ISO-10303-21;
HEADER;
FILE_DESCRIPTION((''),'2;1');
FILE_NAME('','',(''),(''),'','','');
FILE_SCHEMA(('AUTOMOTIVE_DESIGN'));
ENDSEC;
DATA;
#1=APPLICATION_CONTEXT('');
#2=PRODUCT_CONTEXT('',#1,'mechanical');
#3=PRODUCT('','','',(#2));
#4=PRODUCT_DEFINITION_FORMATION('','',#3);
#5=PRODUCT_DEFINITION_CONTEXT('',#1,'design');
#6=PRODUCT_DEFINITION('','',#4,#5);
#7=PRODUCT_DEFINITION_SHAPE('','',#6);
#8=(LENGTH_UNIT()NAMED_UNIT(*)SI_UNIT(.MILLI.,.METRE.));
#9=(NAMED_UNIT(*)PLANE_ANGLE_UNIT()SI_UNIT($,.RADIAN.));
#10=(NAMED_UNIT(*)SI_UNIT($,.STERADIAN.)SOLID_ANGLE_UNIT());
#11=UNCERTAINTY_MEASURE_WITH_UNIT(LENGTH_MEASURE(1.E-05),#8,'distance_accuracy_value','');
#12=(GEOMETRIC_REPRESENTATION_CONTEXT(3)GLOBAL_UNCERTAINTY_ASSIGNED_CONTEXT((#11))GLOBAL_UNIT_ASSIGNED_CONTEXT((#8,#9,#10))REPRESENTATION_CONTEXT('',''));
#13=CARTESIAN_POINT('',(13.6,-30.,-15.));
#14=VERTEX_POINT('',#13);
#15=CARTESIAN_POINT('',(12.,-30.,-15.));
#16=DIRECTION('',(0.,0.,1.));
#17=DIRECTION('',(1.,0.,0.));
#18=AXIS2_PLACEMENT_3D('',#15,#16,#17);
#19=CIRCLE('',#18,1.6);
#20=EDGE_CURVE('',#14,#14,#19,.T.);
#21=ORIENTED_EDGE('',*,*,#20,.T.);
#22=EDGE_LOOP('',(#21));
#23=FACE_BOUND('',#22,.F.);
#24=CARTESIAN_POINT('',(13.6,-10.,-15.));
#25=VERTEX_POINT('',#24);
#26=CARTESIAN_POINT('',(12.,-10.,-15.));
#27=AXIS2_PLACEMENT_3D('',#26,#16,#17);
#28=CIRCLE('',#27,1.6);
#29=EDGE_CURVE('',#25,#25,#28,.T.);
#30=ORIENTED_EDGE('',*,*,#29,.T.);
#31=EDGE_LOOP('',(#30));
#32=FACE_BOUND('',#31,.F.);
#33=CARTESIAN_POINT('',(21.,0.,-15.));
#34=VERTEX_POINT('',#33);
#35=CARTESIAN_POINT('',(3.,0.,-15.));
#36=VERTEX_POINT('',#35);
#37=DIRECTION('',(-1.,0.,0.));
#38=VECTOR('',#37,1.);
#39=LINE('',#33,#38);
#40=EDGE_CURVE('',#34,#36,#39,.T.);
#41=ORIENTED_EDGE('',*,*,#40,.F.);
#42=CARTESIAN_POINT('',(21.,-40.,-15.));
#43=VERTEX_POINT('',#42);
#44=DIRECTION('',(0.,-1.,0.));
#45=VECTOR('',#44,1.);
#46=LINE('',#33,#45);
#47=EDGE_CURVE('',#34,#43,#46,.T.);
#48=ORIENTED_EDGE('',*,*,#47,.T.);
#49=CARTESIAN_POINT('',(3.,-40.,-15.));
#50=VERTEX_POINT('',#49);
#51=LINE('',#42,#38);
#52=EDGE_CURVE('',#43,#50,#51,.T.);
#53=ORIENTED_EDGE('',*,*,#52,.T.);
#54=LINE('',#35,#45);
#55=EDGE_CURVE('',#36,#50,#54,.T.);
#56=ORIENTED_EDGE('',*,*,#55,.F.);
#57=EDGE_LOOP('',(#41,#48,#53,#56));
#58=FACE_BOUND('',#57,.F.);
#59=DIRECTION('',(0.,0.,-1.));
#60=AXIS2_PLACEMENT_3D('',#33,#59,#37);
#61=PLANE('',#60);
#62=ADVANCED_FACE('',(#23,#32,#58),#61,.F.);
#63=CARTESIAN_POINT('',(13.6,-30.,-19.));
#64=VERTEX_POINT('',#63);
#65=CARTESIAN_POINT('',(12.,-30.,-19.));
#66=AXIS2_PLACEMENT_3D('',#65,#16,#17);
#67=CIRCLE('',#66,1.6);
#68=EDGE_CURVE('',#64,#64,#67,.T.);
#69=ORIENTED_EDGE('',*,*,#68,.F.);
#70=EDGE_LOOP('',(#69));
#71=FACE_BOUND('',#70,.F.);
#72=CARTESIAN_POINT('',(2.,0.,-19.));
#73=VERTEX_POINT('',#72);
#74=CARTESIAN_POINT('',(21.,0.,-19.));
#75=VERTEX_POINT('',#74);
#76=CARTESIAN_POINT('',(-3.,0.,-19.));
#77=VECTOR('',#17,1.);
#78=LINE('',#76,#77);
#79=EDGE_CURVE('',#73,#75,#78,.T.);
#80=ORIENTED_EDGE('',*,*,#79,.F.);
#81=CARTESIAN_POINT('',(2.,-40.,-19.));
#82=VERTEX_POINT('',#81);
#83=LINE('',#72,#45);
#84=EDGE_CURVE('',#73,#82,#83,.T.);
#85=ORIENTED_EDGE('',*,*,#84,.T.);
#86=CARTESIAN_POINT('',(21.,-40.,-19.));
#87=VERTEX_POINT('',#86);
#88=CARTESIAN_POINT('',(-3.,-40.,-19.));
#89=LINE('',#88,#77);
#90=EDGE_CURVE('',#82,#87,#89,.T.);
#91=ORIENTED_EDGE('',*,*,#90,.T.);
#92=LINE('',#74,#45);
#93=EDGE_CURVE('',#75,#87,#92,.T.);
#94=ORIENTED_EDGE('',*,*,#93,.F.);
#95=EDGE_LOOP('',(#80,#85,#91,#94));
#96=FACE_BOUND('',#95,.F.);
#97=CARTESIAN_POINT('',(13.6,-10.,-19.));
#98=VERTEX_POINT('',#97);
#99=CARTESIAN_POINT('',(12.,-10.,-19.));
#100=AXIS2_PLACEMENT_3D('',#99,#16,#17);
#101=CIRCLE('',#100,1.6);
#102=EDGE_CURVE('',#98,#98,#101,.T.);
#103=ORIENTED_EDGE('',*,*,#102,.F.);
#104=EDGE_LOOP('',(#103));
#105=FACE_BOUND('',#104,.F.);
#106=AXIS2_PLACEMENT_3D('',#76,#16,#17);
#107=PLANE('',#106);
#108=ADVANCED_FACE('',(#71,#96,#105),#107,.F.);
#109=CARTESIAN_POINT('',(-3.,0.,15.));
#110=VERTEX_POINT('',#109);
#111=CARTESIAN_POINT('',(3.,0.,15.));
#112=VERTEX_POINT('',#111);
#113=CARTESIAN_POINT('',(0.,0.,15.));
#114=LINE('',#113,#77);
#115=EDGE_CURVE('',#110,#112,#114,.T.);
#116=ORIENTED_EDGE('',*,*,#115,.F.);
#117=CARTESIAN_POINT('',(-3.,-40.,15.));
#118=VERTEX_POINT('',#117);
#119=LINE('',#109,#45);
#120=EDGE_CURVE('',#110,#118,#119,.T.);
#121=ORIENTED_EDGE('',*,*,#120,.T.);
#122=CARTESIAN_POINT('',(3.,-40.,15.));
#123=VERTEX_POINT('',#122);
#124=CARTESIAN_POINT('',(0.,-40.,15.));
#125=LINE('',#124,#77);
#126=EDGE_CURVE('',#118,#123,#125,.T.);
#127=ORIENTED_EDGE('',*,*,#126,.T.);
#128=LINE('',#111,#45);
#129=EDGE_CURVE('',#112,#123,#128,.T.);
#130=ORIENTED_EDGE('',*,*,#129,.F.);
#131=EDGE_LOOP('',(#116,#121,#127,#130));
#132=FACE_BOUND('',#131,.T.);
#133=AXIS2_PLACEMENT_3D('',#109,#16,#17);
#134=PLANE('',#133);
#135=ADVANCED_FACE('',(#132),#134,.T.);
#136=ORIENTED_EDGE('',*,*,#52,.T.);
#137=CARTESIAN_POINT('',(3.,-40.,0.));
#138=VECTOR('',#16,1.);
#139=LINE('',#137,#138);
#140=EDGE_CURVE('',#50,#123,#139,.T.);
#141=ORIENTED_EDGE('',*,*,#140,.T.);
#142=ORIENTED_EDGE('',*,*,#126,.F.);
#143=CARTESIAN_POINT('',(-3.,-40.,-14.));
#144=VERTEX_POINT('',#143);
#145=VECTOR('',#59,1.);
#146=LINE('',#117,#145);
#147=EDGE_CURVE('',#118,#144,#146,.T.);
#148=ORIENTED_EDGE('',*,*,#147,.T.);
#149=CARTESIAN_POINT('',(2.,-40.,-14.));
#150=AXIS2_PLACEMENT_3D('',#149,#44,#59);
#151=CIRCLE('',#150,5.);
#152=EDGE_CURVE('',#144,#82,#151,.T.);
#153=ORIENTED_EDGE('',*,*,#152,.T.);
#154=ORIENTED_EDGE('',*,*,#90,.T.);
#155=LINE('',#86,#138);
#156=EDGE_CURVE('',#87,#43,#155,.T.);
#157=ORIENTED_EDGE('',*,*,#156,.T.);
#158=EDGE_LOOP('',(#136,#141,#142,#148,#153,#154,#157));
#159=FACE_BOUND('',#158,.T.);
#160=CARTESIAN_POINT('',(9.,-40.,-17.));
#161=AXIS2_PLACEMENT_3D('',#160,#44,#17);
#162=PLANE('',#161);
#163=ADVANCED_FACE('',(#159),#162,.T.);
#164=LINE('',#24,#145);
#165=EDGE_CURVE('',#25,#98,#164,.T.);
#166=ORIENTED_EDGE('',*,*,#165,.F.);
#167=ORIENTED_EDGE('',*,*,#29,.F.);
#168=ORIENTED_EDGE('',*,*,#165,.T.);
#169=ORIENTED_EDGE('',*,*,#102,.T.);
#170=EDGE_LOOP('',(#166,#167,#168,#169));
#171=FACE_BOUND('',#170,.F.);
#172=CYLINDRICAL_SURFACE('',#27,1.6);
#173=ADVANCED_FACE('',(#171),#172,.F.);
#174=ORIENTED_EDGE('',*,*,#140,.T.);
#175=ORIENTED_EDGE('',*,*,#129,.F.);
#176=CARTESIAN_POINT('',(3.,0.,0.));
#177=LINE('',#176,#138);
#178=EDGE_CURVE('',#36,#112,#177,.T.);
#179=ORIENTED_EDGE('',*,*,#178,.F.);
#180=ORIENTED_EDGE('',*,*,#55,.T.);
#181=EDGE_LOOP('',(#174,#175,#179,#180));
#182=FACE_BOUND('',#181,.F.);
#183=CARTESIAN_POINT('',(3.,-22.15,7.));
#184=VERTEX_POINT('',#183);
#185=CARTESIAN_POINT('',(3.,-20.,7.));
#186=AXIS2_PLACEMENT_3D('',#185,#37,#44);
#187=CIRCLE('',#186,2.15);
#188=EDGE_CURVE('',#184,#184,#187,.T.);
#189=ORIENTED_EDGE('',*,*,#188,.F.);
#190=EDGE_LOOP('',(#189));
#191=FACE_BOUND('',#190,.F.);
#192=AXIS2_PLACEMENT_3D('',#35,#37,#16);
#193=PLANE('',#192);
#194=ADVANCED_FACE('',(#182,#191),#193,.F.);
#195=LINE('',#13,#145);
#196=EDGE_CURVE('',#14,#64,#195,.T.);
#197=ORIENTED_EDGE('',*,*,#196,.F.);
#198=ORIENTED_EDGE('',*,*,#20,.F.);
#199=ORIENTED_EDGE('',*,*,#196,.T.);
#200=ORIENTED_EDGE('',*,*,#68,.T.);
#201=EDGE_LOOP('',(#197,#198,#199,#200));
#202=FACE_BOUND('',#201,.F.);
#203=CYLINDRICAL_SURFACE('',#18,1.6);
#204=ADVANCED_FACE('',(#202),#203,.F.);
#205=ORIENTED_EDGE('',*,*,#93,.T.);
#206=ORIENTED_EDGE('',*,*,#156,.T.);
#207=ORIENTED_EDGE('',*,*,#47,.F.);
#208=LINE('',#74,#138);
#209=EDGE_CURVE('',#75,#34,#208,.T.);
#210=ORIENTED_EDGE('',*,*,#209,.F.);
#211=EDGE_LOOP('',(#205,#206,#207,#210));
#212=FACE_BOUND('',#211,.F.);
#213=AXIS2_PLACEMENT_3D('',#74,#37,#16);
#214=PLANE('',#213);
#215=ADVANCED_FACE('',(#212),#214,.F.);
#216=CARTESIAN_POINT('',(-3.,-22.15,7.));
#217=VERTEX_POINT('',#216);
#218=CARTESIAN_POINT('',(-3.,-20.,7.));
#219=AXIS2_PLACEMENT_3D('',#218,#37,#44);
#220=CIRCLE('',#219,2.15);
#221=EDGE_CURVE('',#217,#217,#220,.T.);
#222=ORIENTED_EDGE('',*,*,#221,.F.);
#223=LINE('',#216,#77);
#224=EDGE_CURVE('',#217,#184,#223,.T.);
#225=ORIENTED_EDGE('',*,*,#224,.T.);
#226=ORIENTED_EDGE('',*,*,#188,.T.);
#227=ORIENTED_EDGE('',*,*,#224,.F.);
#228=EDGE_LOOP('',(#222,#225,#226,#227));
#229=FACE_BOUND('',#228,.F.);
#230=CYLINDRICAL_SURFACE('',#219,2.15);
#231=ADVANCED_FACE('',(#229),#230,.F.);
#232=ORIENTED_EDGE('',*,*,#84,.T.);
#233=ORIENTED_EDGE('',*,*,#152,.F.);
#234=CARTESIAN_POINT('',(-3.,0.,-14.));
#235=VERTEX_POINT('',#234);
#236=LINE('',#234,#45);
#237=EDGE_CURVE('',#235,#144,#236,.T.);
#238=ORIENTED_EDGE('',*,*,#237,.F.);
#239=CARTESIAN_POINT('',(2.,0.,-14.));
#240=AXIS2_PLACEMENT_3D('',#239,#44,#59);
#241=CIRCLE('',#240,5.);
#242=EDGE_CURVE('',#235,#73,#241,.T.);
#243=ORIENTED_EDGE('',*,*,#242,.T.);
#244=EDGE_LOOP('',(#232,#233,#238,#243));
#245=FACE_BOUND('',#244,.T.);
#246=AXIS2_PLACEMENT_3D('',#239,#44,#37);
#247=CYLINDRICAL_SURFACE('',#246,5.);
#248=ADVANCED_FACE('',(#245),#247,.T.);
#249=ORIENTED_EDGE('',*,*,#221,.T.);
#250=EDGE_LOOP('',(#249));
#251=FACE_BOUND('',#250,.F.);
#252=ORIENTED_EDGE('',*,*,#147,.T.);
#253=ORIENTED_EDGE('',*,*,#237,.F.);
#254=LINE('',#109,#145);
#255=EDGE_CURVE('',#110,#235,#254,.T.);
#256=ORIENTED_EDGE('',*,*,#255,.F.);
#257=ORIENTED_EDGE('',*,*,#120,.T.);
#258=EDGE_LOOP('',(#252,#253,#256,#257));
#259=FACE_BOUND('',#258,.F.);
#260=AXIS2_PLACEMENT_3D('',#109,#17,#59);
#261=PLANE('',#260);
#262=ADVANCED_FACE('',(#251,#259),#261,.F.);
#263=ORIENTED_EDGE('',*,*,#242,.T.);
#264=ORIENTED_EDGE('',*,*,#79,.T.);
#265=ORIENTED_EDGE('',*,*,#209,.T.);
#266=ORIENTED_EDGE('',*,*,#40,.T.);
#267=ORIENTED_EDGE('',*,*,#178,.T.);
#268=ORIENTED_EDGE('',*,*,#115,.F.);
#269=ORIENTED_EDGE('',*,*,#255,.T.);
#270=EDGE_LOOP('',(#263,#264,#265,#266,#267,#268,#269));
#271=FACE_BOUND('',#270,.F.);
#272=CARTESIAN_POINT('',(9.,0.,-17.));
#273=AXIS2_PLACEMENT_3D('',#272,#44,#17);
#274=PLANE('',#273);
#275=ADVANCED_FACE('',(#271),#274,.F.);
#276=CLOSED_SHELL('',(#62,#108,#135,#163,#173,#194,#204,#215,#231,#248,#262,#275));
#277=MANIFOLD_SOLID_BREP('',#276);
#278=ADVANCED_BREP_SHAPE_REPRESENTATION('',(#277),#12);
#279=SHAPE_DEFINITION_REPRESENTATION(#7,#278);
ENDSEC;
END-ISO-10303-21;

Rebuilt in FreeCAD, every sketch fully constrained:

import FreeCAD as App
import Part
import Sketcher

V = App.Vector
Q = App.Units.Quantity


def edges_at(feature, points):
    """Names of the edges that pass closest to the given points."""
    edges = feature.Shape.Edges
    near = lambda p: min(range(len(edges)), key=lambda i: edges[i].distToShape(Part.Vertex(*p))[0])
    return sorted({f"Edge{near(p) + 1}" for p in points})

doc = App.newDocument("Part")
params = doc.addObject("Spreadsheet::Sheet", "Params")
for row, (alias, value) in enumerate([
    ("sketch1_width", "18 mm"),
    ("sketch1_width2", "6 mm"),
    ("sketch1_height", "30 mm"),
    ("sketch1_height2", "34 mm"),
    ("pad1_length", "40 mm"),
    ("fillet_radius", "5 mm"),
    ("sketch2_diameter", "4.3 mm"),
    ("pocket1_length", "25 mm"),
    ("sketch3_diameter", "3.2 mm"),
    ("pocket2_length", "25 mm"),
], start=1):
    params.set(f"A{row}", alias)
    params.set(f"B{row}", "=" + value)
    params.setAlias(f"B{row}", alias)

body = doc.addObject("PartDesign::Body", "Body")

# Sketch on XZ plane
sketch1 = doc.addObject("Sketcher::SketchObject", "Sketch")
body.addObject(sketch1)
sketch1.AttachmentSupport = (doc.XZ_Plane, [""])
sketch1.MapMode = "FlatFace"
sketch1.addGeometry([
    Part.LineSegment(V(21, -15, 0), V(3, -15, 0)),  # 0
    Part.LineSegment(V(3, -15, 0), V(3, 15, 0)),  # 1
    Part.LineSegment(V(3, 15, 0), V(-3, 15, 0)),  # 2
    Part.LineSegment(V(-3, 15, 0), V(-3, -19, 0)),  # 3
    Part.LineSegment(V(-3, -19, 0), V(21, -19, 0)),  # 4
    Part.LineSegment(V(21, -19, 0), V(21, -15, 0)),  # 5
], False)
sketch1.addConstraint([
    Sketcher.Constraint("Coincident", 0, 2, 1, 1),
    Sketcher.Constraint("Coincident", 1, 2, 2, 1),
    Sketcher.Constraint("Coincident", 2, 2, 3, 1),
    Sketcher.Constraint("Coincident", 3, 2, 4, 1),
    Sketcher.Constraint("Coincident", 4, 2, 5, 1),
    Sketcher.Constraint("Coincident", 5, 2, 0, 1),
    Sketcher.Constraint("Horizontal", 0),
    Sketcher.Constraint("Vertical", 1),
    Sketcher.Constraint("Horizontal", 2),
    Sketcher.Constraint("Vertical", 3),
    Sketcher.Constraint("Horizontal", 4),
    Sketcher.Constraint("Vertical", 5),
    Sketcher.Constraint("Symmetric", 0, 2, 2, 2, -1, 1),
    Sketcher.Constraint("DistanceX", 0, 2, 0, 1, Q("18 mm")),
    Sketcher.Constraint("DistanceX", 2, 2, 2, 1, Q("6 mm")),
    Sketcher.Constraint("DistanceY", 1, 1, 1, 2, Q("30 mm")),
    Sketcher.Constraint("DistanceY", 3, 2, 3, 1, Q("34 mm")),
])
sketch1.setExpression("Constraints[13]", "Params.sketch1_width")
sketch1.setExpression("Constraints[14]", "Params.sketch1_width2")
sketch1.setExpression("Constraints[15]", "Params.sketch1_height")
sketch1.setExpression("Constraints[16]", "Params.sketch1_height2")
pad1 = doc.addObject("PartDesign::Pad", "Pad")
body.addObject(pad1)
pad1.Profile = sketch1
pad1.setExpression("Length", "Params.pad1_length")
doc.recompute()

fillet = doc.addObject("PartDesign::Fillet", "Fillet")
body.addObject(fillet)
fillet.Base = (pad1, edges_at(pad1, [(-3, -20, -19)]))
fillet.setExpression("Radius", "Params.fillet_radius")

# Sketch on YZ plane
sketch2 = doc.addObject("Sketcher::SketchObject", "Sketch001")
body.addObject(sketch2)
sketch2.AttachmentSupport = (doc.YZ_Plane, [""])
sketch2.MapMode = "FlatFace"
sketch2.AttachmentOffset = App.Placement(V(0, 0, -3), App.Rotation())
sketch2.addGeometry(Part.Circle(V(-20, 7, 0), V(0, 0, 1), 2.1), False)
sketch2.addConstraint([
    Sketcher.Constraint("Diameter", 0, Q("4.3 mm")),
    Sketcher.Constraint("DistanceX", 0, 3, -1, 1, Q("20 mm")),
    Sketcher.Constraint("DistanceY", -1, 1, 0, 3, Q("7 mm")),
])
sketch2.setExpression("Constraints[0]", "Params.sketch2_diameter")
pocket1 = doc.addObject("PartDesign::Pocket", "Pocket")
body.addObject(pocket1)
pocket1.Profile = sketch2
pocket1.setExpression("Length", "Params.pocket1_length")
pocket1.Reversed = True

# Sketch on XY plane
sketch3 = doc.addObject("Sketcher::SketchObject", "Sketch002")
body.addObject(sketch3)
sketch3.AttachmentSupport = (doc.XY_Plane, [""])
sketch3.MapMode = "FlatFace"
sketch3.AttachmentOffset = App.Placement(V(0, 0, -15), App.Rotation())
sketch3.addGeometry([
    Part.Circle(V(12, -10, 0), V(0, 0, 1), 1.6),
    Part.Circle(V(12, -30, 0), V(0, 0, 1), 1.6),
], False)
sketch3.addConstraint([
    Sketcher.Constraint("Equal", 0, 1),
    Sketcher.Constraint("Vertical", 0, 3, 1, 3),
    Sketcher.Constraint("Diameter", 0, Q("3.2 mm")),
    Sketcher.Constraint("DistanceX", -1, 1, 0, 3, Q("12 mm")),
    Sketcher.Constraint("DistanceY", 0, 3, -1, 1, Q("10 mm")),
    Sketcher.Constraint("DistanceY", 1, 3, -1, 1, Q("30 mm")),
])
sketch3.setExpression("Constraints[2]", "Params.sketch3_diameter")
pocket2 = doc.addObject("PartDesign::Pocket", "Pocket001")
body.addObject(pocket2)
pocket2.Profile = sketch3
pocket2.setExpression("Length", "Params.pocket2_length")

doc.recompute()
